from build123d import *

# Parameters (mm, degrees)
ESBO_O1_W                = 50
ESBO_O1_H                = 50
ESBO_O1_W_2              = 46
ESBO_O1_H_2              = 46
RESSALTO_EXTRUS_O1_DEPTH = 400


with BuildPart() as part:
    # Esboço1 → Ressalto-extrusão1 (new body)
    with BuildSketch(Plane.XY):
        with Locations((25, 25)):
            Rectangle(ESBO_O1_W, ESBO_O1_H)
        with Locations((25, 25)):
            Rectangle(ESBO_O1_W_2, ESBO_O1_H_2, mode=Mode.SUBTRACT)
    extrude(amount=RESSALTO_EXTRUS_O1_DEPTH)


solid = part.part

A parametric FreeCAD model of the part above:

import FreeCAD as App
import Part
import Sketcher


def add_polygon(sketch, points):
    """Adds a closed chain of lines whose ends are joined by coincident constraints."""
    first, n = sketch.GeometryCount, len(points)
    for a, b in zip(points, points[1:] + points[:1]):
        sketch.addGeometry(Part.LineSegment(App.Vector(*a, 0), App.Vector(*b, 0)), False)
    for i in range(n):
        sketch.addConstraint(Sketcher.Constraint("Coincident", first + i, 2, first + (i + 1) % n, 1))

doc = App.newDocument("Part")
params = doc.addObject("Spreadsheet::Sheet", "Params")
for row, (alias, value) in enumerate([
    ("sketch1_width", "50 mm"),
    ("sketch1_width2", "46 mm"),
    ("pad1_length", "400 mm"),
], start=1):
    params.set(f"A{row}", alias)
    params.set(f"B{row}", "=" + value)
    params.setAlias(f"B{row}", alias)

body = doc.addObject("PartDesign::Body", "Body")

# Sketch on XY plane
sketch1 = body.newObject("Sketcher::SketchObject", "Sketch")
sketch1.AttachmentSupport = (doc.getObject("XY_Plane"), [""])
sketch1.MapMode = "FlatFace"
add_polygon(sketch1, [(0, 50), (0, 0), (50, 0), (50, 50)])  # lines 0-3
add_polygon(sketch1, [(48, 2), (2, 2), (2, 48), (48, 48)])  # lines 4-7
sketch1.addConstraint(Sketcher.Constraint("Vertical", 0))
sketch1.addConstraint(Sketcher.Constraint("Horizontal", 1))
sketch1.addConstraint(Sketcher.Constraint("Vertical", 2))
sketch1.addConstraint(Sketcher.Constraint("Horizontal", 3))
sketch1.addConstraint(Sketcher.Constraint("Horizontal", 4))
sketch1.addConstraint(Sketcher.Constraint("Vertical", 5))
sketch1.addConstraint(Sketcher.Constraint("Horizontal", 6))
sketch1.addConstraint(Sketcher.Constraint("Vertical", 7))
sketch1.addConstraint(Sketcher.Constraint("Coincident", 0, 2, -1, 1))
sketch1.addConstraint(Sketcher.Constraint("Equal", 3, 0))
sketch1.addConstraint(Sketcher.Constraint("Equal", 6, 5))
sketch1.addConstraint(Sketcher.Constraint("DistanceX", 1, 1, 1, 2, 50.0))
sketch1.addConstraint(Sketcher.Constraint("DistanceX", 4, 2, 4, 1, 46.0))
sketch1.addConstraint(Sketcher.Constraint("DistanceX", -1, 1, 4, 2, 2.0))
sketch1.addConstraint(Sketcher.Constraint("DistanceY", -1, 1, 4, 2, 2.0))
sketch1.setExpression("Constraints[19]", "Params.sketch1_width")
sketch1.setExpression("Constraints[20]", "Params.sketch1_width2")
pad1 = body.newObject("PartDesign::Pad", "Pad")
pad1.Profile = sketch1
pad1.setExpression("Length", "Params.pad1_length")

doc.recompute()
